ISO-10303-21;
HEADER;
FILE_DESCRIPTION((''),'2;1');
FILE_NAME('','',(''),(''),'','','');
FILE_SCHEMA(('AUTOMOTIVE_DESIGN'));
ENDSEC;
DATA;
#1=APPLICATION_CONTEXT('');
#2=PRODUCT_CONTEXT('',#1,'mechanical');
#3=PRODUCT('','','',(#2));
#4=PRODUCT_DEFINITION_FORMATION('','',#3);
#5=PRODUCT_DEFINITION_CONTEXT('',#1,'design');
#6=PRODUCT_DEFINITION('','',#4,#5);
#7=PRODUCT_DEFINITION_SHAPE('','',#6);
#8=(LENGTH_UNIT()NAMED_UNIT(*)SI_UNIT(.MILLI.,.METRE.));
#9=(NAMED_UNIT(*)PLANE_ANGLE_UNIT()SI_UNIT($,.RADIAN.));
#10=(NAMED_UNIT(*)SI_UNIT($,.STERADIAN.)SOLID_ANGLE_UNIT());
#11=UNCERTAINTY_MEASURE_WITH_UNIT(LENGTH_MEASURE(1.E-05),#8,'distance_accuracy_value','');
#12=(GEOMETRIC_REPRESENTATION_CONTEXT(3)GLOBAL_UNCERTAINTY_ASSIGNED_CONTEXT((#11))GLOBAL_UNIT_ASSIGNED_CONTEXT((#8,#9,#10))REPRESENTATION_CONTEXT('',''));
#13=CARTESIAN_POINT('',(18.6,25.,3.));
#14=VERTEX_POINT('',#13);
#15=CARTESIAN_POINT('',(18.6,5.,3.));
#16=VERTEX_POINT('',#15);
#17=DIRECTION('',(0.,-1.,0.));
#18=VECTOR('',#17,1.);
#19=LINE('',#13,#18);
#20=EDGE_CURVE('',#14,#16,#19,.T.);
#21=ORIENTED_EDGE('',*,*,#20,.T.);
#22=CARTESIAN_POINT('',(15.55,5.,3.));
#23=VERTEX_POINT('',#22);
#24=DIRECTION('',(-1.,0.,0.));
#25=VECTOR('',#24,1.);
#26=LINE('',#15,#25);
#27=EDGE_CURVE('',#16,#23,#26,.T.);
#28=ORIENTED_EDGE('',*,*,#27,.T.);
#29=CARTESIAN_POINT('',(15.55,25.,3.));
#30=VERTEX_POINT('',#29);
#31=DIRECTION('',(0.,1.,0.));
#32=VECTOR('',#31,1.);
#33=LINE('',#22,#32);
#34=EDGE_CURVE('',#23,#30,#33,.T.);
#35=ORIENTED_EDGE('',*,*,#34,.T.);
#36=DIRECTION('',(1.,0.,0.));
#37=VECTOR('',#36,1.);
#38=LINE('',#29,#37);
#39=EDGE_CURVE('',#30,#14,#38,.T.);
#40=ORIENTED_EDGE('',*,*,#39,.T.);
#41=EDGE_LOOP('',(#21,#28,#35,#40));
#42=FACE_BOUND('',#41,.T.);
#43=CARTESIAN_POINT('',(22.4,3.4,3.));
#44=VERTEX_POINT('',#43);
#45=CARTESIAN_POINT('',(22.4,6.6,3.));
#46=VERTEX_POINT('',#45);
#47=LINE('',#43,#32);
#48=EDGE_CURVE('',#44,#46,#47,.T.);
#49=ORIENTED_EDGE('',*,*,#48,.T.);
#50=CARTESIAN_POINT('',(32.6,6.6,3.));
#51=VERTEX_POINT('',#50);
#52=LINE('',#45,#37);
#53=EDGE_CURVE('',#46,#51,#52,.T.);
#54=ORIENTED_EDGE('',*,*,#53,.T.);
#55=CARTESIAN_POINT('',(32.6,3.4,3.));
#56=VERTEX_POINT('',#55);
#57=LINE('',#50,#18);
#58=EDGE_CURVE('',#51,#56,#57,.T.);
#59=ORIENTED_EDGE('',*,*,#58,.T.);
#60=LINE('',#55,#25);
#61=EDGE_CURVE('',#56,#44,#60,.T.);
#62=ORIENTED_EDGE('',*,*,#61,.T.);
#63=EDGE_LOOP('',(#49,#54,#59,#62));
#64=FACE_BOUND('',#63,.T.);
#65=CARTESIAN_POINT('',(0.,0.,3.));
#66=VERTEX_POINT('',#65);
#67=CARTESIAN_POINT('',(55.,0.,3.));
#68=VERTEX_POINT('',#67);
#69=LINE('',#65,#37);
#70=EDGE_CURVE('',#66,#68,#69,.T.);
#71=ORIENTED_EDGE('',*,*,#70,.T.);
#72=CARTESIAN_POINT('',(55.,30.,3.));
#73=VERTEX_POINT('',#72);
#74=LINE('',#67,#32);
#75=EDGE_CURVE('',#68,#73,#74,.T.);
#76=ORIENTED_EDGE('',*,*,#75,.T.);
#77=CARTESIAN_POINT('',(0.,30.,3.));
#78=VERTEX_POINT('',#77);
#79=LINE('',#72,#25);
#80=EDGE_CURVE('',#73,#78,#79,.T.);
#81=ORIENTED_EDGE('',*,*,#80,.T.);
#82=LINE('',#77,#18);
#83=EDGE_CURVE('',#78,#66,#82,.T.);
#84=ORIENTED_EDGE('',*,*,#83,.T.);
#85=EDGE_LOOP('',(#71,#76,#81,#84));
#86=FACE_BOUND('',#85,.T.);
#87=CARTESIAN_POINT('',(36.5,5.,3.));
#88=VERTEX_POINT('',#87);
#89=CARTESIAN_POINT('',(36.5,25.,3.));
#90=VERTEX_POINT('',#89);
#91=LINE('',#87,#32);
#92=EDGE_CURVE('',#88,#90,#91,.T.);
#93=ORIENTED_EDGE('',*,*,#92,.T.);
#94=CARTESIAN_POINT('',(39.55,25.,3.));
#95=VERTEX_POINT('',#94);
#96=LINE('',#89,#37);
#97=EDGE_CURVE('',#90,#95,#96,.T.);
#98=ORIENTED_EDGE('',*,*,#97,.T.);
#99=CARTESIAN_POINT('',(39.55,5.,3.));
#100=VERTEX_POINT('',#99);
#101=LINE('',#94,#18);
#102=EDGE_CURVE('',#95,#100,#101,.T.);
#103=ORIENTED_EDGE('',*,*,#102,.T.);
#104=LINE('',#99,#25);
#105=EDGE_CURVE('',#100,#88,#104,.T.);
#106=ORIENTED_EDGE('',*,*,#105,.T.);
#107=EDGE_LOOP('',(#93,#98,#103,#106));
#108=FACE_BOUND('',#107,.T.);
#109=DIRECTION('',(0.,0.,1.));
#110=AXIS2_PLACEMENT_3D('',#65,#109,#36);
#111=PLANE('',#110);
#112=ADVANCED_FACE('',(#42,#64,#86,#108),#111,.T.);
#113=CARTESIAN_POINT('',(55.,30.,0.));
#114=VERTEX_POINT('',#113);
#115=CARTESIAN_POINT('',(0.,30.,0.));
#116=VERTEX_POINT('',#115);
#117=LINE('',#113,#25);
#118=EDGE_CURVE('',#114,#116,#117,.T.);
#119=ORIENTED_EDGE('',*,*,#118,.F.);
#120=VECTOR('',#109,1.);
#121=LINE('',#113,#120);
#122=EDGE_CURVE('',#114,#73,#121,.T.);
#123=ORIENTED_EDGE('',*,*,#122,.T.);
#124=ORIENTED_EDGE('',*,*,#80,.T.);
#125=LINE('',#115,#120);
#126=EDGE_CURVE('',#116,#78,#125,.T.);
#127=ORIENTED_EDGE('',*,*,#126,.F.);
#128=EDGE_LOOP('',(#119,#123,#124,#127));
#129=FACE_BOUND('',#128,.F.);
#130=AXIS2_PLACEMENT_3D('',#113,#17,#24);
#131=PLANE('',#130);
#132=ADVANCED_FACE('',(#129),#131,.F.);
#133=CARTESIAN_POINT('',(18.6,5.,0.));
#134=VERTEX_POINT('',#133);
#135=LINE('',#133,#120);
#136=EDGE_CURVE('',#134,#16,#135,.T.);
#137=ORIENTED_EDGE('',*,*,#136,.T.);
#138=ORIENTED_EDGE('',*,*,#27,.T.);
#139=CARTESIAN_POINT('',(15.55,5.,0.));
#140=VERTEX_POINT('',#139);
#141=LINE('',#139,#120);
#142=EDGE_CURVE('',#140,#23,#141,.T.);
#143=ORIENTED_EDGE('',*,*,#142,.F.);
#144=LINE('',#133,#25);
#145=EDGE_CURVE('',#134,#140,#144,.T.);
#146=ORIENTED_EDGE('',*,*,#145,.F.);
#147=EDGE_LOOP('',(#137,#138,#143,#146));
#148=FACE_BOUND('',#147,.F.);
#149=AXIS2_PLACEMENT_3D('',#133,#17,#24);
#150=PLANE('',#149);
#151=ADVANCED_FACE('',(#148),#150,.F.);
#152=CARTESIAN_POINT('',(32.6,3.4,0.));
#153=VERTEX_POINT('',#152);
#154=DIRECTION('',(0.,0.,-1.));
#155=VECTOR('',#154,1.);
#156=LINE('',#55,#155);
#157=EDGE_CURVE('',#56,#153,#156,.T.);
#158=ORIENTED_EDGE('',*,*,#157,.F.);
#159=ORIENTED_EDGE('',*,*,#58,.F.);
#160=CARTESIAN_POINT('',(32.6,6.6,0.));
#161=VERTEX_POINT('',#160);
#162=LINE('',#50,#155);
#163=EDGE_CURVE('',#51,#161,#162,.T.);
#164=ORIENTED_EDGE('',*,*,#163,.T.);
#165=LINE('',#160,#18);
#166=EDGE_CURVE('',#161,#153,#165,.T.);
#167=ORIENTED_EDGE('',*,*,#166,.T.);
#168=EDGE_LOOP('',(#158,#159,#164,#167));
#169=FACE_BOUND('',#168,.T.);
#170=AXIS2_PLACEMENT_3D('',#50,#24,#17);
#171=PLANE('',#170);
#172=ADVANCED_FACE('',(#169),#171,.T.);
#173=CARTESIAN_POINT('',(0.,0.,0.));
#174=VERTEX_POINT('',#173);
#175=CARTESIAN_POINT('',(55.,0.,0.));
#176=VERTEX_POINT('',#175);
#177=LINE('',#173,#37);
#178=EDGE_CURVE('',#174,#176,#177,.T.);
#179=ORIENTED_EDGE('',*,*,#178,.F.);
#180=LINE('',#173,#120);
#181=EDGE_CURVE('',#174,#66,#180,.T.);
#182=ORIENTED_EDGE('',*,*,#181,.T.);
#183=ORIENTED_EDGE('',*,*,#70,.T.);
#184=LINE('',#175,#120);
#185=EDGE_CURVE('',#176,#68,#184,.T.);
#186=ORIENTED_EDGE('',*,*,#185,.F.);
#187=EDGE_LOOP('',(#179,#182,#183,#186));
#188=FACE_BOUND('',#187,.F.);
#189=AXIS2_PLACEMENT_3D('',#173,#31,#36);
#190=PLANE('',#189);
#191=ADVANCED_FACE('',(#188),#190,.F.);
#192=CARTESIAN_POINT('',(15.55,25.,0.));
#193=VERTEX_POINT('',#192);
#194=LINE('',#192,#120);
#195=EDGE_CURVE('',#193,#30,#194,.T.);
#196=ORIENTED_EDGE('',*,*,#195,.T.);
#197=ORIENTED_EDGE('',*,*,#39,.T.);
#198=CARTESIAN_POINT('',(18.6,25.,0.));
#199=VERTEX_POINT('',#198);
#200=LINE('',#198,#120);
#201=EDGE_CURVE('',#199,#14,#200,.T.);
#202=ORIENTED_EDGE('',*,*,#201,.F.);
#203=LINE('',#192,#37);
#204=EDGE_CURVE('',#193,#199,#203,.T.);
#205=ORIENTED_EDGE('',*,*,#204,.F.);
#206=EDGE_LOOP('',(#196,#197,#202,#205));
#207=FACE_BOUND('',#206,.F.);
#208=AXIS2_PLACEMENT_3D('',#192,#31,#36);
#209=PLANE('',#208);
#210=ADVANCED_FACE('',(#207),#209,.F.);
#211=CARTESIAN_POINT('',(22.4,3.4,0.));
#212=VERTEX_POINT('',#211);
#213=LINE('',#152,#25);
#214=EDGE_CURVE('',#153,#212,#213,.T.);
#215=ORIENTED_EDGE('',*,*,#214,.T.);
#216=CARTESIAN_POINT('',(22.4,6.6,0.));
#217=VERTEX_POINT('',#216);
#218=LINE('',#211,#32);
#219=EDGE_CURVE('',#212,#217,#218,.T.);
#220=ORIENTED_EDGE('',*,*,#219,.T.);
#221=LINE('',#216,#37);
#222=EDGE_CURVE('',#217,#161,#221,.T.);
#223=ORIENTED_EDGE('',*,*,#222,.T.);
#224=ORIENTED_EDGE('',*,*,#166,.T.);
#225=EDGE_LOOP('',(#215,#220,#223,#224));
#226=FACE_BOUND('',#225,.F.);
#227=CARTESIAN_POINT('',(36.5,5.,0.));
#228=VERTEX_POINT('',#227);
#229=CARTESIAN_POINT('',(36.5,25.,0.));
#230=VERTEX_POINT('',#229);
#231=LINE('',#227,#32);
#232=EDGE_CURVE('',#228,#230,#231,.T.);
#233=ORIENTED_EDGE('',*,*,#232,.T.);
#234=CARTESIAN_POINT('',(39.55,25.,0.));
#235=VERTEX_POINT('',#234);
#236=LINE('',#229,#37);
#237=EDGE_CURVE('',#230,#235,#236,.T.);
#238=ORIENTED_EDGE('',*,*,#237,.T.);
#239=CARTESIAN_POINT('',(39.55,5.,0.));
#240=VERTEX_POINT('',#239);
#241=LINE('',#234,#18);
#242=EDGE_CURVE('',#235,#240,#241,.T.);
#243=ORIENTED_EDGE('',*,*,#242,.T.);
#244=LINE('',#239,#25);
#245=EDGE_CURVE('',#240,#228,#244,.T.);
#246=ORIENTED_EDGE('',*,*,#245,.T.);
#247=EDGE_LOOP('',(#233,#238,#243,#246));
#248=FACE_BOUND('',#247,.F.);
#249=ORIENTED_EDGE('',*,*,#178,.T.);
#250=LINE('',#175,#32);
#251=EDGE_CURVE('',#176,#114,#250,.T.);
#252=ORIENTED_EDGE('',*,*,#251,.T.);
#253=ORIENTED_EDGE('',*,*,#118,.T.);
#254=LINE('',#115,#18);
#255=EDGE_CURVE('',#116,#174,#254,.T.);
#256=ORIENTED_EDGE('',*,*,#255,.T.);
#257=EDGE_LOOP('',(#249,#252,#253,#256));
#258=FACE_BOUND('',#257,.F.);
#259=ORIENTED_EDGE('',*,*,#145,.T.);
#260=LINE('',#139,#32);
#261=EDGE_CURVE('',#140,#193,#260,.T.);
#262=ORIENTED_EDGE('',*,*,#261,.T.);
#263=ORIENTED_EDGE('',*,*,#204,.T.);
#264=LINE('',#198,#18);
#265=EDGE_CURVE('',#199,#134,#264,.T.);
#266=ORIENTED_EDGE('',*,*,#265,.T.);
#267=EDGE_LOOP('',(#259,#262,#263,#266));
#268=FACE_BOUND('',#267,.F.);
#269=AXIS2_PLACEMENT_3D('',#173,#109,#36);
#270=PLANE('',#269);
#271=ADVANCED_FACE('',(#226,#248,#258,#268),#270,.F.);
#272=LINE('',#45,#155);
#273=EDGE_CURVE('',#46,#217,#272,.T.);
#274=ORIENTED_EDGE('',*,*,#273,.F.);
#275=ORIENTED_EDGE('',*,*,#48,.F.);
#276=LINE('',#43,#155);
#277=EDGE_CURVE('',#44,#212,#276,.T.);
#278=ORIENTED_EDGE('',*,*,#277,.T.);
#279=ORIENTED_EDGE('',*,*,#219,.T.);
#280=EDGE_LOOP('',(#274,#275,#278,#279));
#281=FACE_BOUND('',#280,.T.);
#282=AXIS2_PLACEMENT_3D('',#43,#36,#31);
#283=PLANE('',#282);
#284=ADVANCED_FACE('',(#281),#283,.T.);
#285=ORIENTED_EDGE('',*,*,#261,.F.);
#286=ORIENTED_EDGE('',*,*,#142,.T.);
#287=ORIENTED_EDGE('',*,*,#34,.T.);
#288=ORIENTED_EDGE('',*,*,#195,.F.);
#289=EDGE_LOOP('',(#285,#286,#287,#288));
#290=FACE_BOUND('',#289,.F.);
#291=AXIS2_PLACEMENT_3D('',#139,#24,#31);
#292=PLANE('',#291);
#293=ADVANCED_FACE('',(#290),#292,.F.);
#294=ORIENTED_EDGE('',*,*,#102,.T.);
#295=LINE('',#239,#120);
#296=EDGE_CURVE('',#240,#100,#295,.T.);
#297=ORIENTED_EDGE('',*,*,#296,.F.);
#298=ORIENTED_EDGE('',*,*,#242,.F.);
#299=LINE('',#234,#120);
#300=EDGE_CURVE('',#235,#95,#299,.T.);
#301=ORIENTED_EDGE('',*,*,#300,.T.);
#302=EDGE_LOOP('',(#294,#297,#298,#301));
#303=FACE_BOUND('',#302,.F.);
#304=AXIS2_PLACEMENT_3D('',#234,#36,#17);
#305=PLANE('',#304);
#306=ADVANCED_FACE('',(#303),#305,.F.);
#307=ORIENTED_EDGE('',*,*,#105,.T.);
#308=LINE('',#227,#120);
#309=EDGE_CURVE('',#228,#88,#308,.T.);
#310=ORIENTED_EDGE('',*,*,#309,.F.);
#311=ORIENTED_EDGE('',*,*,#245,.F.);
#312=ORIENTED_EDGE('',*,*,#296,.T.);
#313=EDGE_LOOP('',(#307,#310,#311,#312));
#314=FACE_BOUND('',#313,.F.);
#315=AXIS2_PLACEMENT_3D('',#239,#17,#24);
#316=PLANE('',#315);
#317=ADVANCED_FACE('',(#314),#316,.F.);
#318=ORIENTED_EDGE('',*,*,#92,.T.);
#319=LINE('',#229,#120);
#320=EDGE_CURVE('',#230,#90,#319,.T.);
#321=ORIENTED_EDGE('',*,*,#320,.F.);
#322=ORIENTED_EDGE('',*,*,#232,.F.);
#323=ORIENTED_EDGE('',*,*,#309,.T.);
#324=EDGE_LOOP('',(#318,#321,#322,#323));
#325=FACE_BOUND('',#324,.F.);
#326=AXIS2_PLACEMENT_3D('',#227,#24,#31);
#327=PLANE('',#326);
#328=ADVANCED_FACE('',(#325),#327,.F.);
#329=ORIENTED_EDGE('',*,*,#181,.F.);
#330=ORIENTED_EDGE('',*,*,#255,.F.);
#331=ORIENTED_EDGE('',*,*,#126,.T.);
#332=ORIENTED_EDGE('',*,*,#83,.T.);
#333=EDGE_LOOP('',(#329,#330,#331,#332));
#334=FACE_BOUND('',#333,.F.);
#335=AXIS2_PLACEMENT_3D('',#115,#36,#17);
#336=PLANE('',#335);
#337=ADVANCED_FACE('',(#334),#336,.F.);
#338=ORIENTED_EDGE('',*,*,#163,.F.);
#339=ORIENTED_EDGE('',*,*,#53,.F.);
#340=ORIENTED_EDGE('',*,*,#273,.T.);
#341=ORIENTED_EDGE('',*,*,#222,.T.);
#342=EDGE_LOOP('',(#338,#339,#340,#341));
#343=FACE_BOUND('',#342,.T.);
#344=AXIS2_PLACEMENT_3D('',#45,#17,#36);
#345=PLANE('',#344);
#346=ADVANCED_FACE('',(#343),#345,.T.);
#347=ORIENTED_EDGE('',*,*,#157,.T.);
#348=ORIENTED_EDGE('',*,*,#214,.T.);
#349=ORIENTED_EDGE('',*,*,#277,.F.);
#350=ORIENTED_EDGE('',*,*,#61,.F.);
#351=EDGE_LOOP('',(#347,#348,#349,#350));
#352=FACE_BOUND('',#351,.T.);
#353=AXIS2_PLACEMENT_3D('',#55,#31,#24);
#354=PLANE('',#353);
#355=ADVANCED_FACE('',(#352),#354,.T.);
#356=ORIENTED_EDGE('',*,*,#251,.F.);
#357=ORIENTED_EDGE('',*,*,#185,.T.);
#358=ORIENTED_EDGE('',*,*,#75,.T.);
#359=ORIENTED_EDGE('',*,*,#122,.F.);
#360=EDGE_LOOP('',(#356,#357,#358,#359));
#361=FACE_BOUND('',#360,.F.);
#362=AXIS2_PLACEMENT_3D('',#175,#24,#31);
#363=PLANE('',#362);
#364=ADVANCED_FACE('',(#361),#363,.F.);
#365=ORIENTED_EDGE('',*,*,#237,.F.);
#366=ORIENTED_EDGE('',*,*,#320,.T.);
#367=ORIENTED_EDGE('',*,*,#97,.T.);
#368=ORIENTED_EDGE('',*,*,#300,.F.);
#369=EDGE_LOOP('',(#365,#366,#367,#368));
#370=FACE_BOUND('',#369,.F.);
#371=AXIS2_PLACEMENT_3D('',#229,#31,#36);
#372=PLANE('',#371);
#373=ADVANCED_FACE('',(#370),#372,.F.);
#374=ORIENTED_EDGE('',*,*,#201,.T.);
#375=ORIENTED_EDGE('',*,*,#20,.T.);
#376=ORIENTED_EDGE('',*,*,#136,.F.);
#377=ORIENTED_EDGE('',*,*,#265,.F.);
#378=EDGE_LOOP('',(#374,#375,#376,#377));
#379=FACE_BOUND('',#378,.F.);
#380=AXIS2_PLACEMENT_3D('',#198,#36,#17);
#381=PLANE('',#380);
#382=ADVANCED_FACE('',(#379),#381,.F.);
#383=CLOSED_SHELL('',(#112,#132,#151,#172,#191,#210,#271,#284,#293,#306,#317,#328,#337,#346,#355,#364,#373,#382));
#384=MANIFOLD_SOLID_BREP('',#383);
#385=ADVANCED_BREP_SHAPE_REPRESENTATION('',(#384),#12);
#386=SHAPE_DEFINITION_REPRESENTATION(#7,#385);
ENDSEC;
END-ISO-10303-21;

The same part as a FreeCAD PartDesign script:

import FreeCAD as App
import Part
import Sketcher

V = App.Vector
Q = App.Units.Quantity

doc = App.newDocument("Part")
body = doc.addObject("PartDesign::Body", "Body")

# Sketch on XY plane
sketch1 = body.newObject("Sketcher::SketchObject", "Sketch")
sketch1.AttachmentSupport = (doc.getObject("XY_Plane"), [""])
sketch1.MapMode = "FlatFace"
sketch1.addGeometry([
    Part.LineSegment(V(0, 30, 0), V(0, 0, 0)),  # 0
    Part.LineSegment(V(0, 0, 0), V(55, 0, 0)),  # 1
    Part.LineSegment(V(55, 0, 0), V(55, 30, 0)),  # 2
    Part.LineSegment(V(55, 30, 0), V(0, 30, 0)),  # 3
    Part.LineSegment(V(15.6, 5, 0), V(15.6, 25, 0)),  # 4
    Part.LineSegment(V(15.6, 25, 0), V(18.6, 25, 0)),  # 5
    Part.LineSegment(V(18.6, 25, 0), V(18.6, 5, 0)),  # 6
    Part.LineSegment(V(18.6, 5, 0), V(15.6, 5, 0)),  # 7
    Part.LineSegment(V(36.5, 5, 0), V(36.5, 25, 0)),  # 8
    Part.LineSegment(V(36.5, 25, 0), V(39.5, 25, 0)),  # 9
    Part.LineSegment(V(39.5, 25, 0), V(39.5, 5, 0)),  # 10
    Part.LineSegment(V(39.5, 5, 0), V(36.5, 5, 0)),  # 11
], False)
sketch1.addConstraint([
    Sketcher.Constraint("Coincident", 0, 2, 1, 1),
    Sketcher.Constraint("Coincident", 1, 2, 2, 1),
    Sketcher.Constraint("Coincident", 2, 2, 3, 1),
    Sketcher.Constraint("Coincident", 3, 2, 0, 1),
    Sketcher.Constraint("Coincident", 4, 2, 5, 1),
    Sketcher.Constraint("Coincident", 5, 2, 6, 1),
    Sketcher.Constraint("Coincident", 6, 2, 7, 1),
    Sketcher.Constraint("Coincident", 7, 2, 4, 1),
    Sketcher.Constraint("Coincident", 8, 2, 9, 1),
    Sketcher.Constraint("Coincident", 9, 2, 10, 1),
    Sketcher.Constraint("Coincident", 10, 2, 11, 1),
    Sketcher.Constraint("Coincident", 11, 2, 8, 1),
    Sketcher.Constraint("Vertical", 0),
    Sketcher.Constraint("Horizontal", 1),
    Sketcher.Constraint("Vertical", 2),
    Sketcher.Constraint("Horizontal", 3),
    Sketcher.Constraint("Vertical", 4),
    Sketcher.Constraint("Horizontal", 5),
    Sketcher.Constraint("Vertical", 6),
    Sketcher.Constraint("Horizontal", 7),
    Sketcher.Constraint("Vertical", 8),
    Sketcher.Constraint("Horizontal", 9),
    Sketcher.Constraint("Vertical", 10),
    Sketcher.Constraint("Horizontal", 11),
    Sketcher.Constraint("Coincident", 0, 2, -1, 1),
    Sketcher.Constraint("Horizontal", 5, 2, 8, 2),
    Sketcher.Constraint("Horizontal", 7, 2, 10, 2),
    Sketcher.Constraint("Equal", 7, 9),
    Sketcher.Constraint("DistanceX", 1, 1, 1, 2, Q("55 mm")),
    Sketcher.Constraint("DistanceY", 0, 2, 0, 1, Q("30 mm")),
    Sketcher.Constraint("DistanceX", 4, 2, 9, 2, Q("24 mm")),
    Sketcher.Constraint("DistanceX", 5, 1, 5, 2, Q("3.05 mm")),
    Sketcher.Constraint("DistanceY", 4, 1, 4, 2, Q("20 mm")),
    Sketcher.Constraint("DistanceY", -1, 1, 4, 2, Q("25 mm")),
    Sketcher.Constraint("DistanceX", -1, 1, 5, 2, Q("18.6 mm")),
])
pad1 = body.newObject("PartDesign::Pad", "Pad")
pad1.Profile = sketch1
pad1.Length = 3

# Sketch on XY plane
sketch2 = body.newObject("Sketcher::SketchObject", "Sketch001")
sketch2.AttachmentSupport = (doc.getObject("XY_Plane"), [""])
sketch2.MapMode = "FlatFace"
sketch2.AttachmentOffset = App.Placement(V(0, 0, 3), App.Rotation())
sketch2.addGeometry([
    Part.LineSegment(V(32.6, 6.6, 0), V(22.4, 6.6, 0)),
    Part.LineSegment(V(22.4, 6.6, 0), V(22.4, 3.4, 0)),
    Part.LineSegment(V(22.4, 3.4, 0), V(32.6, 3.4, 0)),
    Part.LineSegment(V(32.6, 3.4, 0), V(32.6, 6.6, 0)),
], False)
sketch2.addConstraint([
    Sketcher.Constraint("Coincident", 0, 2, 1, 1),
    Sketcher.Constraint("Coincident", 1, 2, 2, 1),
    Sketcher.Constraint("Coincident", 2, 2, 3, 1),
    Sketcher.Constraint("Coincident", 3, 2, 0, 1),
    Sketcher.Constraint("Horizontal", 0),
    Sketcher.Constraint("Vertical", 1),
    Sketcher.Constraint("Horizontal", 2),
    Sketcher.Constraint("Vertical", 3),
    Sketcher.Constraint("DistanceX", 0, 2, 0, 1, Q("10.2 mm")),
    Sketcher.Constraint("DistanceY", 1, 2, 1, 1, Q("3.2 mm")),
    Sketcher.Constraint("DistanceX", -1, 1, 0, 2, Q("22.4 mm")),
    Sketcher.Constraint("DistanceY", -1, 1, 0, 2, Q("6.6 mm")),
])
pocket1 = body.newObject("PartDesign::Pocket", "Pocket")
pocket1.Profile = sketch2
pocket1.Length = 3

doc.recompute()
